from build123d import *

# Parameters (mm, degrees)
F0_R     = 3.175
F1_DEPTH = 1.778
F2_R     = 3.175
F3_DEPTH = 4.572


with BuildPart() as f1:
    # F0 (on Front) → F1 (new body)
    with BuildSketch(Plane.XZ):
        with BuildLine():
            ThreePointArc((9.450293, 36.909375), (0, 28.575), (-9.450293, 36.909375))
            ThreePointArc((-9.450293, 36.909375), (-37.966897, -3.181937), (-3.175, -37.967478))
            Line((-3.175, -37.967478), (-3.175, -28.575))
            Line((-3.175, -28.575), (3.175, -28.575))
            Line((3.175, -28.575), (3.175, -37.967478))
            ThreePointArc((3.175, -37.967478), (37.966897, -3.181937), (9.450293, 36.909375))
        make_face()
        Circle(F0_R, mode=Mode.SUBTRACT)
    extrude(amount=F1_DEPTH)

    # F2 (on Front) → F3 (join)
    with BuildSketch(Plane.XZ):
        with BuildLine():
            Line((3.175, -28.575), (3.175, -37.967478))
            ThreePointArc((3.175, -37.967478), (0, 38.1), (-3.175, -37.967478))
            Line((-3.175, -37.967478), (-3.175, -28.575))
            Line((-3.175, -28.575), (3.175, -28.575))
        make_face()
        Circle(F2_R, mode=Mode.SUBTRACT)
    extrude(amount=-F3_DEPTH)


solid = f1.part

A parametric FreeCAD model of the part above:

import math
import FreeCAD as App
import Part
import Sketcher
from FreeCAD import Vector
Q = App.Units.Quantity

doc = App.newDocument("Part")
body = doc.addObject("PartDesign::Body", "Body")

# Sketch on XZ plane
sketch1 = body.newObject("Sketcher::SketchObject", "Sketch")
sketch1.AttachmentSupport = (doc.getObject("XZ_Plane"), [""])
sketch1.MapMode = "FlatFace"
sketch1.addGeometry(Part.ArcOfCircle(Part.Circle(Vector(0, 38.1, 0), Vector(0, 0, 1), 9.5), math.radians(-173), math.radians(-7)), False)
sketch1.addGeometry(Part.ArcOfCircle(Part.Circle(Vector(0, 0, 0), Vector(0, 0, 1), 38.1), math.radians(104), math.radians(265)), False)
sketch1.addGeometry(Part.LineSegment(Vector(-3.2, -38, 0), Vector(-3.2, -28.6, 0)), False)
sketch1.addGeometry(Part.LineSegment(Vector(-3.2, -28.6, 0), Vector(3.2, -28.6, 0)), False)
sketch1.addGeometry(Part.LineSegment(Vector(3.2, -28.6, 0), Vector(3.2, -38, 0)), False)
sketch1.addGeometry(Part.ArcOfCircle(Part.Circle(Vector(0, 0, 0), Vector(0, 0, 1), 38.1), math.radians(-85), math.radians(76)), False)
sketch1.addGeometry(Part.Circle(Vector(0, 0, 0), Vector(0, 0, 1), 3.2), False)
sketch1.addConstraint(Sketcher.Constraint("Coincident", 0, 1, 1, 1))
sketch1.addConstraint(Sketcher.Constraint("Coincident", 1, 2, 2, 1))
sketch1.addConstraint(Sketcher.Constraint("Coincident", 2, 2, 3, 1))
sketch1.addConstraint(Sketcher.Constraint("Coincident", 3, 2, 4, 1))
sketch1.addConstraint(Sketcher.Constraint("Coincident", 4, 2, 5, 1))
sketch1.addConstraint(Sketcher.Constraint("Coincident", 5, 2, 0, 2))
sketch1.addConstraint(Sketcher.Constraint("Vertical", 2))
sketch1.addConstraint(Sketcher.Constraint("Horizontal", 3))
sketch1.addConstraint(Sketcher.Constraint("Vertical", 4))
sketch1.addConstraint(Sketcher.Constraint("Coincident", 1, 3, -1, 1))
sketch1.addConstraint(Sketcher.Constraint("Coincident", 5, 3, -1, 1))
sketch1.addConstraint(Sketcher.Constraint("Coincident", 6, 3, -1, 1))
sketch1.addConstraint(Sketcher.Constraint("Equal", 1, 5))
sketch1.addConstraint(Sketcher.Constraint("PointOnObject", 0, 3, -2))
sketch1.addConstraint(Sketcher.Constraint("Horizontal", 1, 2, 4, 2))
sketch1.addConstraint(Sketcher.Constraint("Radius", 1, Q("1.5 in")))
sketch1.addConstraint(Sketcher.Constraint("Diameter", 6, Q("0.25 in")))
sketch1.addConstraint(Sketcher.Constraint("Radius", 0, Q("0.375 in")))
sketch1.addConstraint(Sketcher.Constraint("DistanceX", 3, 1, 3, 2, Q("0.25 in")))
sketch1.addConstraint(Sketcher.Constraint("DistanceY", -1, 1, 0, 3, Q("1.5 in")))
sketch1.addConstraint(Sketcher.Constraint("DistanceY", 2, 2, -1, 1, Q("1.125 in")))
pad1 = body.newObject("PartDesign::Pad", "Pad")
pad1.Profile = sketch1
pad1.Length = Q("0.07 in")

# Sketch on XZ plane
sketch2 = body.newObject("Sketcher::SketchObject", "Sketch001")
sketch2.AttachmentSupport = (doc.getObject("XZ_Plane"), [""])
sketch2.MapMode = "FlatFace"
sketch2.addGeometry(Part.LineSegment(Vector(3.2, -28.6, 0), Vector(3.2, -38, 0)), False)
sketch2.addGeometry(Part.ArcOfCircle(Part.Circle(Vector(0, 0, 0), Vector(0, 0, 1), 38.1), math.radians(-85), math.radians(265)), False)
sketch2.addGeometry(Part.LineSegment(Vector(-3.2, -38, 0), Vector(-3.2, -28.6, 0)), False)
sketch2.addGeometry(Part.LineSegment(Vector(-3.2, -28.6, 0), Vector(3.2, -28.6, 0)), False)
sketch2.addGeometry(Part.Circle(Vector(0, 0, 0), Vector(0, 0, 1), 3.2), False)
sketch2.addConstraint(Sketcher.Constraint("Coincident", 0, 2, 1, 1))
sketch2.addConstraint(Sketcher.Constraint("Coincident", 1, 2, 2, 1))
sketch2.addConstraint(Sketcher.Constraint("Coincident", 2, 2, 3, 1))
sketch2.addConstraint(Sketcher.Constraint("Coincident", 3, 2, 0, 1))
sketch2.addConstraint(Sketcher.Constraint("Vertical", 0))
sketch2.addConstraint(Sketcher.Constraint("Vertical", 2))
sketch2.addConstraint(Sketcher.Constraint("Horizontal", 3))
sketch2.addConstraint(Sketcher.Constraint("Coincident", 1, 3, -1, 1))
sketch2.addConstraint(Sketcher.Constraint("Coincident", 4, 3, -1, 1))
sketch2.addConstraint(Sketcher.Constraint("Horizontal", 0, 2, 1, 2))
sketch2.addConstraint(Sketcher.Constraint("Radius", 1, Q("1.5 in")))
sketch2.addConstraint(Sketcher.Constraint("Diameter", 4, Q("0.25 in")))
sketch2.addConstraint(Sketcher.Constraint("DistanceX", 3, 1, 3, 2, Q("0.25 in")))
sketch2.addConstraint(Sketcher.Constraint("DistanceY", 2, 2, -1, 1, Q("1.125 in")))
pad2 = body.newObject("PartDesign::Pad", "Pad001")
pad2.Profile = sketch2
pad2.Length = Q("0.18 in")
pad2.Reversed = True

doc.recompute()
